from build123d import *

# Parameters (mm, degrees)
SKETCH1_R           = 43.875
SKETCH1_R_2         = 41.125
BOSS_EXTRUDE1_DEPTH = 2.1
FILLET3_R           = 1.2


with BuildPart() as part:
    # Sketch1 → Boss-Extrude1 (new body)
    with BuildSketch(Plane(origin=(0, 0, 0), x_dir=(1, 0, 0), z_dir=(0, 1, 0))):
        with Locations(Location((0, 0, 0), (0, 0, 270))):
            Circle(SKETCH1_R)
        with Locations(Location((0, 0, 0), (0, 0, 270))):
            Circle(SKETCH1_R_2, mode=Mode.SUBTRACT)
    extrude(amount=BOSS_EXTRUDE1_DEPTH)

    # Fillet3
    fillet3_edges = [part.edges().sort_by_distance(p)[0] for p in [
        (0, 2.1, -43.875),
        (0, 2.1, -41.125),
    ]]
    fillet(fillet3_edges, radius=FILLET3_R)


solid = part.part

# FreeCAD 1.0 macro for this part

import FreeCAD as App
import Part
import Sketcher

V = App.Vector


def edges_at(feature, points):
    """Names of the edges that pass closest to the given points."""
    edges = feature.Shape.Edges
    near = lambda p: min(range(len(edges)), key=lambda i: edges[i].distToShape(Part.Vertex(*p))[0])
    return sorted({f"Edge{near(p) + 1}" for p in points})

doc = App.newDocument("Part")
body = doc.addObject("PartDesign::Body", "Body")

# Sketch on XZ plane
sketch1 = body.newObject("Sketcher::SketchObject", "Sketch")
sketch1.AttachmentSupport = (doc.getObject("XZ_Plane"), [""])
sketch1.MapMode = "FlatFace"
sketch1.addGeometry([
    Part.Circle(V(0, 0, 0), V(0, 0, 1), 44),
    Part.Circle(V(0, 0, 0), V(0, 0, 1), 41),
], False)
sketch1.addConstraint([
    Sketcher.Constraint("Coincident", 0, 3, -1, 1),
    Sketcher.Constraint("Coincident", 1, 3, -1, 1),
    Sketcher.Constraint("Diameter", 0, 87.75),
    Sketcher.Constraint("Diameter", 1, 82.25),
])
pad1 = body.newObject("PartDesign::Pad", "Pad")
pad1.Profile = sketch1
pad1.Length = 2.1
pad1.Reversed = True
doc.recompute()

fillet = body.newObject("PartDesign::Fillet", "Fillet")
fillet.Base = (pad1, edges_at(pad1, [(0, 2.1, -43.875), (0, 2.1, -41.125)]))
fillet.Radius = 1.2

doc.recompute()
